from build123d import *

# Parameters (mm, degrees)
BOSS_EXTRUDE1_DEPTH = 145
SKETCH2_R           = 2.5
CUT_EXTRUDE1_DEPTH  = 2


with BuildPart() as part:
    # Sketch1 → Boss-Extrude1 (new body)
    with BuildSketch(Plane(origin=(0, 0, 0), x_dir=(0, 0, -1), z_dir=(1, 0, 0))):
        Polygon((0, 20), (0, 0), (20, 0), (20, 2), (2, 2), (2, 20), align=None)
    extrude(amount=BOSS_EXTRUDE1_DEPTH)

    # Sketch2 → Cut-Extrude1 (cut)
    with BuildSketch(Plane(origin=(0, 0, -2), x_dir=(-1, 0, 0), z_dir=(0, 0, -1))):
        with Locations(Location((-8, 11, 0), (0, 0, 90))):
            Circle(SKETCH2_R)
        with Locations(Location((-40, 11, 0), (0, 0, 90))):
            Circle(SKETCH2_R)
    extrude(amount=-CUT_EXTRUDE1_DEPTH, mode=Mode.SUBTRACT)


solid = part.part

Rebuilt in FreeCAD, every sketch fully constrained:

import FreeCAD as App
import Part
import Sketcher
from FreeCAD import Vector
Q = App.Units.Quantity


def add_polygon(sketch, points):
    """Adds a closed chain of lines whose ends are joined by coincident constraints."""
    first, n = sketch.GeometryCount, len(points)
    for a, b in zip(points, points[1:] + points[:1]):
        sketch.addGeometry(Part.LineSegment(App.Vector(*a, 0), App.Vector(*b, 0)), False)
    for i in range(n):
        sketch.addConstraint(Sketcher.Constraint("Coincident", first + i, 2, first + (i + 1) % n, 1))

doc = App.newDocument("Part")
params = doc.addObject("Spreadsheet::Sheet", "Params")
for row, (alias, value) in enumerate([
    ("sketch1_width", "20 mm"),
    ("sketch1_width2", "2 mm"),
    ("pad1_length", "145 mm"),
    ("sketch2_diameter", "5 mm"),
    ("pocket1_length", "2 mm"),
], start=1):
    params.set(f"A{row}", alias)
    params.set(f"B{row}", "=" + value)
    params.setAlias(f"B{row}", alias)

body = doc.addObject("PartDesign::Body", "Body")

sketch1 = doc.addObject("Sketcher::SketchObject", "Sketch")
body.addObject(sketch1)
sketch1.AttachmentSupport = (doc.YZ_Plane, [""])
sketch1.MapMode = "FlatFace"
add_polygon(sketch1, [(20, 0), (0, 0), (0, -20), (2, -20), (2, -2), (20, -2)])
sketch1.addConstraint([
    Sketcher.Constraint("Horizontal", 0),
    Sketcher.Constraint("Vertical", 1),
    Sketcher.Constraint("Horizontal", 2),
    Sketcher.Constraint("Vertical", 3),
    Sketcher.Constraint("Horizontal", 4),
    Sketcher.Constraint("Vertical", 5),
    Sketcher.Constraint("Coincident", 0, 2, -1, 1),
    Sketcher.Constraint("Equal", 0, 1),
    Sketcher.Constraint("Equal", 4, 3),
    Sketcher.Constraint("DistanceX", 0, 2, 0, 1, Q("20 mm")),
    Sketcher.Constraint("DistanceX", 2, 1, 2, 2, Q("2 mm")),
])
sketch1.setExpression("Constraints[15]", "Params.sketch1_width")
sketch1.setExpression("Constraints[16]", "Params.sketch1_width2")
pad1 = doc.addObject("PartDesign::Pad", "Pad")
body.addObject(pad1)
pad1.Profile = sketch1
pad1.setExpression("Length", "Params.pad1_length")

sketch2 = doc.addObject("Sketcher::SketchObject", "Sketch001")
body.addObject(sketch2)
sketch2.AttachmentSupport = (doc.XY_Plane, [""])
sketch2.MapMode = "FlatFace"
sketch2.AttachmentOffset = App.Placement(Vector(0, 0, -2), App.Rotation())
sketch2.addGeometry([
    Part.Circle(Vector(8, 11, 0), Vector(0, 0, 1), 2.5),
    Part.Circle(Vector(40, 11, 0), Vector(0, 0, 1), 2.5),
], False)
sketch2.addConstraint([
    Sketcher.Constraint("Equal", 0, 1),
    Sketcher.Constraint("Horizontal", 0, 3, 1, 3),
    Sketcher.Constraint("Diameter", 0, Q("5 mm")),
    Sketcher.Constraint("DistanceX", -1, 1, 0, 3, Q("8 mm")),
    Sketcher.Constraint("DistanceY", -1, 1, 0, 3, Q("11 mm")),
    Sketcher.Constraint("DistanceX", -1, 1, 1, 3, Q("40 mm")),
])
sketch2.setExpression("Constraints[2]", "Params.sketch2_diameter")
pocket1 = doc.addObject("PartDesign::Pocket", "Pocket")
body.addObject(pocket1)
pocket1.Profile = sketch2
pocket1.setExpression("Length", "Params.pocket1_length")
pocket1.Reversed = True

doc.recompute()
